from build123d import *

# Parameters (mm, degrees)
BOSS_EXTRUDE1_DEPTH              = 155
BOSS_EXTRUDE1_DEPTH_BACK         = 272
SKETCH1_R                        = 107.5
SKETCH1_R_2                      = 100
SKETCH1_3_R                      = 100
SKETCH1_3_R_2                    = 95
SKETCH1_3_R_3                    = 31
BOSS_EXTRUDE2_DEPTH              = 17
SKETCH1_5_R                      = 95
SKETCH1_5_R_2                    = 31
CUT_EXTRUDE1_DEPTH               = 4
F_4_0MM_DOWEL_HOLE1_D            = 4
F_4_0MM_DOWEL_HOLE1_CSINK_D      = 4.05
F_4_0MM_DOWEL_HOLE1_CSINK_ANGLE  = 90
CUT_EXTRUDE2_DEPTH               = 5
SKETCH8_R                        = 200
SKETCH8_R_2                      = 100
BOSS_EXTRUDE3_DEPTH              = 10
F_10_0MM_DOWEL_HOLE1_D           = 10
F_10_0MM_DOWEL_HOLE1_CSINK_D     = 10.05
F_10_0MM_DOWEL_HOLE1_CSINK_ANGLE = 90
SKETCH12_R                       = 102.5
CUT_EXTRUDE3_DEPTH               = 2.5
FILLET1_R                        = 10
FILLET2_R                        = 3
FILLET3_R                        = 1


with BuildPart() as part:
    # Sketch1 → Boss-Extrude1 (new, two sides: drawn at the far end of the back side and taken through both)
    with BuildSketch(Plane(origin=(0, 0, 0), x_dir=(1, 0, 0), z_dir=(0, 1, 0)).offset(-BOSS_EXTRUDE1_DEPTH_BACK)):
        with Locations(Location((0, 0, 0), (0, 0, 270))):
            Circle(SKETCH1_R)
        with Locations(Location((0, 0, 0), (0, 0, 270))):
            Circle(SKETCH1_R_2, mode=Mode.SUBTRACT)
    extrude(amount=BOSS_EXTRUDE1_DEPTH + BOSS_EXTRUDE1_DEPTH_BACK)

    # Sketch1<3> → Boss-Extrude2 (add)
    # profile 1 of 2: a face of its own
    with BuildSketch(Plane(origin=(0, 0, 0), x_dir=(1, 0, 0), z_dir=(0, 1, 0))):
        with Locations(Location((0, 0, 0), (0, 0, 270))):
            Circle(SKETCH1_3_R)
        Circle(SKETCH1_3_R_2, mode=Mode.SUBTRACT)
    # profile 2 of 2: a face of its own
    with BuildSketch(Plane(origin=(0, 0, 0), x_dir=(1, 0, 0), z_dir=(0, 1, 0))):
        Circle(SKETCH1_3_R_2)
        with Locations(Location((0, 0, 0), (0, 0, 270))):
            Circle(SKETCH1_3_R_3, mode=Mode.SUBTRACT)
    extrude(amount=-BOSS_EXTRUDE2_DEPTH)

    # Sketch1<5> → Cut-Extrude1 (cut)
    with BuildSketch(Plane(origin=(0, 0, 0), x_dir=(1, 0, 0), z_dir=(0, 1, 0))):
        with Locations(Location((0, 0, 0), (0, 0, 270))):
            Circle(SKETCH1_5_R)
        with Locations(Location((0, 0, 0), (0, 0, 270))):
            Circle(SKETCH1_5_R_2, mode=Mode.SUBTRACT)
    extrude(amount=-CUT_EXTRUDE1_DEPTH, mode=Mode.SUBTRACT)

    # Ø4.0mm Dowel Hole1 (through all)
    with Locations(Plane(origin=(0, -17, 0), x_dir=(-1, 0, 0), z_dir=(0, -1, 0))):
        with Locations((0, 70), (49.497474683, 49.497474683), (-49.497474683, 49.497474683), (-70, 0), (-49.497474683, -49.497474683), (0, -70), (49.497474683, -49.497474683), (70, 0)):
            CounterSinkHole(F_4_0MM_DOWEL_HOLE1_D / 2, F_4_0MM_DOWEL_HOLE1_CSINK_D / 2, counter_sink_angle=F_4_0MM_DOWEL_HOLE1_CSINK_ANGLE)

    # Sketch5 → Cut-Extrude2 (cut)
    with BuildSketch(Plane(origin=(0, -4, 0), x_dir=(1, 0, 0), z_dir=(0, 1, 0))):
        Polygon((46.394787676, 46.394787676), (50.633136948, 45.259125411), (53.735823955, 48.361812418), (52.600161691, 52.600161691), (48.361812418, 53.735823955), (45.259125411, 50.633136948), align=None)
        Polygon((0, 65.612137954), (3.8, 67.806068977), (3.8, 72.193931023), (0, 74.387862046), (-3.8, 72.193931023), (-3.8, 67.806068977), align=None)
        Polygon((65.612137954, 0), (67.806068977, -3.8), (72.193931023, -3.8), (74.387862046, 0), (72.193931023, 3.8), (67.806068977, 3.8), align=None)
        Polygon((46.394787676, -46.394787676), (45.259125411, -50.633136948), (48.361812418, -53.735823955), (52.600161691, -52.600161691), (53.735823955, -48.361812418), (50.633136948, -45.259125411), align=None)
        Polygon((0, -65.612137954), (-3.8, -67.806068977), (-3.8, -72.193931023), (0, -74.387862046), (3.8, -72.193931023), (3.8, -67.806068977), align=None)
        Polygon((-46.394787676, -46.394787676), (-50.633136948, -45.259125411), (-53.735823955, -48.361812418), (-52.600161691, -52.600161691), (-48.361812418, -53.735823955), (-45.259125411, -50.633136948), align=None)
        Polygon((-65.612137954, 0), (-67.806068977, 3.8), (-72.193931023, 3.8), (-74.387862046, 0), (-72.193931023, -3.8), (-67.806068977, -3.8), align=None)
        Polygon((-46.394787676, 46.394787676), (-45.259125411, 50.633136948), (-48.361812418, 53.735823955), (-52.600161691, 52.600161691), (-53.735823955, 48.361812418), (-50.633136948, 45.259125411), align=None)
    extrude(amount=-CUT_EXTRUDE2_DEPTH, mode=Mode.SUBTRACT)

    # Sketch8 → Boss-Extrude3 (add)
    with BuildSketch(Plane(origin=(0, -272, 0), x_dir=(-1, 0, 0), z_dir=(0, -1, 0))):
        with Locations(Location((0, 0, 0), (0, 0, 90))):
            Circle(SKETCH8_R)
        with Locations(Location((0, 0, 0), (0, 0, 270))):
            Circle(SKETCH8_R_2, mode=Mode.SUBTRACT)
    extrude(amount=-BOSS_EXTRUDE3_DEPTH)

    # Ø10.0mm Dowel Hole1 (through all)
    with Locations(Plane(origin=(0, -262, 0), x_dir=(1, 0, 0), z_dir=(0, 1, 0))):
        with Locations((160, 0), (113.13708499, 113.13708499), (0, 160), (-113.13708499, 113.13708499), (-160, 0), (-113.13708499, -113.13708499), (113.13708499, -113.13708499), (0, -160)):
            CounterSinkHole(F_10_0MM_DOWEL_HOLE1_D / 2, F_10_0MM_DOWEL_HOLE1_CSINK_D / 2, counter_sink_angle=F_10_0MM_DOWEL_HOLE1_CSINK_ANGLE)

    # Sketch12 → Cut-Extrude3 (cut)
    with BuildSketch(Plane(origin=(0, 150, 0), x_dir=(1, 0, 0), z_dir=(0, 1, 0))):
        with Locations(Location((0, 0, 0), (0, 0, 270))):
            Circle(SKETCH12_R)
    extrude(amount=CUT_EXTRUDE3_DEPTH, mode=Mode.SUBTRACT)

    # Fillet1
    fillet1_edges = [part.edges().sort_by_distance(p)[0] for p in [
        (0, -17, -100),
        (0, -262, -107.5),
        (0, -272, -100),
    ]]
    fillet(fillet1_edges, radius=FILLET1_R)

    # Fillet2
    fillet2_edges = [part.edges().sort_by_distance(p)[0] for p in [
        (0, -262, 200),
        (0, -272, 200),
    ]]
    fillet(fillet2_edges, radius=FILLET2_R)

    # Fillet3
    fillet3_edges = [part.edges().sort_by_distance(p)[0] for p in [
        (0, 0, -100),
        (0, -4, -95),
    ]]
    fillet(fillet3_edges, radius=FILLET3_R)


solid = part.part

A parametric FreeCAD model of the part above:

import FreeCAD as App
import Part
import Sketcher
Q = App.Units.Quantity


def edges_at(feature, points):
    """Names of the edges that pass closest to the given points."""
    edges = feature.Shape.Edges
    near = lambda p: min(range(len(edges)), key=lambda i: edges[i].distToShape(Part.Vertex(*p))[0])
    return sorted({f"Edge{near(p) + 1}" for p in points})


def add_polygon(sketch, points):
    """Adds a closed chain of lines whose ends are joined by coincident constraints."""
    first, n = sketch.GeometryCount, len(points)
    for a, b in zip(points, points[1:] + points[:1]):
        sketch.addGeometry(Part.LineSegment(App.Vector(*a, 0), App.Vector(*b, 0)), False)
    for i in range(n):
        sketch.addConstraint(Sketcher.Constraint("Coincident", first + i, 2, first + (i + 1) % n, 1))

doc = App.newDocument("Part")
body = doc.addObject("PartDesign::Body", "Body")

sketch1 = body.newObject("Sketcher::SketchObject", "Sketch")
sketch1.AttachmentSupport = (doc.getObject("XZ_Plane"), [""])
sketch1.MapMode = "FlatFace"
sketch1.addGeometry([
    Part.Circle(App.Vector(0, 0, 0), App.Vector(0, 0, 1), 107.5),
    Part.Circle(App.Vector(0, 0, 0), App.Vector(0, 0, 1), 100),
], False)
sketch1.addConstraint([
    Sketcher.Constraint("Coincident", 0, 3, -1, 1),
    Sketcher.Constraint("Coincident", 1, 3, -1, 1),
    Sketcher.Constraint("Diameter", 0, 215.0),
    Sketcher.Constraint("Diameter", 1, 200.0),
])
pad1 = body.newObject("PartDesign::Pad", "Pad")
pad1.Profile = sketch1
pad1.Type = "TwoLengths"
pad1.Length = 155
pad1.Length2 = 272
pad1.Reversed = True

sketch2 = body.newObject("Sketcher::SketchObject", "Sketch001")
sketch2.AttachmentSupport = (doc.getObject("XZ_Plane"), [""])
sketch2.MapMode = "FlatFace"
sketch2.addGeometry([
    Part.Circle(App.Vector(0, 0, 0), App.Vector(0, 0, 1), 100),
    Part.Circle(App.Vector(0, 0, 0), App.Vector(0, 0, 1), 31),
], False)
sketch2.addConstraint([
    Sketcher.Constraint("Coincident", 0, 3, -1, 1),
    Sketcher.Constraint("Coincident", 1, 3, -1, 1),
    Sketcher.Constraint("Diameter", 0, 200.0),
    Sketcher.Constraint("Diameter", 1, 62.0),
])
pad2 = body.newObject("PartDesign::Pad", "Pad001")
pad2.Profile = sketch2
pad2.Length = 17

sketch3 = body.newObject("Sketcher::SketchObject", "Sketch002")
sketch3.AttachmentSupport = (doc.getObject("XZ_Plane"), [""])
sketch3.MapMode = "FlatFace"
sketch3.addGeometry([
    Part.Circle(App.Vector(0, 0, 0), App.Vector(0, 0, 1), 95),
    Part.Circle(App.Vector(0, 0, 0), App.Vector(0, 0, 1), 31),
], False)
sketch3.addConstraint([
    Sketcher.Constraint("Coincident", 0, 3, -1, 1),
    Sketcher.Constraint("Coincident", 1, 3, -1, 1),
    Sketcher.Constraint("Diameter", 0, 190.0),
    Sketcher.Constraint("Diameter", 1, 62.0),
])
pocket1 = body.newObject("PartDesign::Pocket", "Pocket")
pocket1.Profile = sketch3
pocket1.Length = 4
pocket1.Reversed = True

sketch4 = body.newObject("Sketcher::SketchObject", "Sketch003")
sketch4.AttachmentSupport = (doc.getObject("XZ_Plane"), [""])
sketch4.MapMode = "FlatFace"
sketch4.AttachmentOffset = App.Placement(App.Vector(0, 0, 17), App.Rotation())
sketch4.addGeometry([
    Part.Circle(App.Vector(0, -70, 0), App.Vector(0, 0, 1), 2),
    Part.Circle(App.Vector(-49.497475, -49.497475, 0), App.Vector(0, 0, 1), 2),
    Part.Circle(App.Vector(49.497475, -49.497475, 0), App.Vector(0, 0, 1), 2),
    Part.Circle(App.Vector(70, 0, 0), App.Vector(0, 0, 1), 2),
    Part.Circle(App.Vector(49.497475, 49.497475, 0), App.Vector(0, 0, 1), 2),
    Part.Circle(App.Vector(0, 70, 0), App.Vector(0, 0, 1), 2),
    Part.Circle(App.Vector(-49.497475, 49.497475, 0), App.Vector(0, 0, 1), 2),
    Part.Circle(App.Vector(-70, 0, 0), App.Vector(0, 0, 1), 2),
], False)
sketch4.addConstraint([
    Sketcher.Constraint("Equal", 0, 1),
    Sketcher.Constraint("Equal", 1, 2),
    Sketcher.Constraint("Equal", 2, 3),
    Sketcher.Constraint("Equal", 3, 4),
    Sketcher.Constraint("Equal", 4, 5),
    Sketcher.Constraint("Equal", 5, 6),
    Sketcher.Constraint("Equal", 6, 7),
    Sketcher.Constraint("Symmetric", 1, 3, 4, 3, -1, 1),
    Sketcher.Constraint("Symmetric", 0, 3, 5, 3, -1, 1),
    Sketcher.Constraint("Symmetric", 2, 3, 6, 3, -1, 1),
    Sketcher.Constraint("Symmetric", 3, 3, 7, 3, -1, 1),
    Sketcher.Constraint("Symmetric", 1, 3, 2, 3, -2),
    Sketcher.Constraint("PointOnObject", 0, 3, -2),
    Sketcher.Constraint("PointOnObject", 3, 3, -1),
    Sketcher.Constraint("Diameter", 0, 4.0),
    Sketcher.Constraint("DistanceY", 0, 3, -1, 1, 70.0),
    Sketcher.Constraint("DistanceX", -1, 1, 3, 3, 70.0),
    Sketcher.Constraint("DistanceX", 1, 3, 2, 3, 98.994949),
    Sketcher.Constraint("DistanceY", 2, 3, 4, 3, 98.994949),
])
doc.recompute()
hole = body.newObject("PartDesign::Hole", "Hole")
hole.Profile = sketch4
hole.ThreadType = "None"
hole.Diameter = 4
hole.DepthType = "ThroughAll"
hole.HoleCutType = "Countersink"
hole.HoleCutDiameter = 4.05
hole.HoleCutCountersinkAngle = 90

sketch5 = body.newObject("Sketcher::SketchObject", "Sketch004")
sketch5.AttachmentSupport = (doc.getObject("XZ_Plane"), [""])
sketch5.MapMode = "FlatFace"
sketch5.AttachmentOffset = App.Placement(App.Vector(0, 0, 4), App.Rotation())
add_polygon(sketch5, [(46.394788, -46.394788), (50.633137, -45.259125), (53.735824, -48.361812), (52.600162, -52.600162), (48.361812, -53.735824), (45.259125, -50.633137)])
add_polygon(sketch5, [(0, -65.612138), (3.8, -67.806069), (3.8, -72.193931), (0, -74.387862), (-3.8, -72.193931), (-3.8, -67.806069)])
add_polygon(sketch5, [(65.612138, 0), (67.806069, 3.8), (72.193931, 3.8), (74.387862, 0), (72.193931, -3.8), (67.806069, -3.8)])
add_polygon(sketch5, [(46.394788, 46.394788), (45.259125, 50.633137), (48.361812, 53.735824), (52.600162, 52.600162), (53.735824, 48.361812), (50.633137, 45.259125)])
add_polygon(sketch5, [(0, 65.612138), (-3.8, 67.806069), (-3.8, 72.193931), (0, 74.387862), (3.8, 72.193931), (3.8, 67.806069)])
add_polygon(sketch5, [(-46.394788, 46.394788), (-50.633137, 45.259125), (-53.735824, 48.361812), (-52.600162, 52.600162), (-48.361812, 53.735824), (-45.259125, 50.633137)])
add_polygon(sketch5, [(-65.612138, 0), (-67.806069, -3.8), (-72.193931, -3.8), (-74.387862, 0), (-72.193931, 3.8), (-67.806069, 3.8)])
add_polygon(sketch5, [(-46.394788, -46.394788), (-45.259125, -50.633137), (-48.361812, -53.735824), (-52.600162, -52.600162), (-53.735824, -48.361812), (-50.633137, -45.259125)])
sketch5.addConstraint([
    Sketcher.Constraint("Vertical", 7),
    Sketcher.Constraint("Vertical", 10),
    Sketcher.Constraint("Horizontal", 13),
    Sketcher.Constraint("Horizontal", 16),
    Sketcher.Constraint("Vertical", 25),
    Sketcher.Constraint("Vertical", 28),
    Sketcher.Constraint("Horizontal", 37),
    Sketcher.Constraint("Horizontal", 40),
    Sketcher.Constraint("Symmetric", 6, 2, 24, 2, -1, 1),
    Sketcher.Constraint("Symmetric", 8, 2, 26, 2, -1, 1),
    Sketcher.Constraint("Symmetric", 9, 2, 27, 2, -1, 1),
    Sketcher.Constraint("Symmetric", 11, 2, 29, 2, -1, 1),
    Sketcher.Constraint("Symmetric", 0, 2, 30, 2, -1, 1),
    Sketcher.Constraint("Symmetric", 1, 2, 31, 2, -1, 1),
    Sketcher.Constraint("Symmetric", 2, 2, 32, 2, -1, 1),
    Sketcher.Constraint("Symmetric", 3, 2, 33, 2, -1, 1),
    Sketcher.Constraint("Symmetric", 4, 2, 34, 2, -1, 1),
    Sketcher.Constraint("Symmetric", 5, 2, 35, 2, -1, 1),
    Sketcher.Constraint("Symmetric", 12, 2, 36, 2, -1, 1),
    Sketcher.Constraint("Symmetric", 14, 2, 38, 2, -1, 1),
    Sketcher.Constraint("Symmetric", 15, 2, 39, 2, -1, 1),
    Sketcher.Constraint("Symmetric", 17, 2, 41, 2, -1, 1),
    Sketcher.Constraint("Symmetric", 18, 2, 42, 2, -1, 1),
    Sketcher.Constraint("Symmetric", 19, 2, 43, 2, -1, 1),
    Sketcher.Constraint("Symmetric", 20, 2, 44, 2, -1, 1),
    Sketcher.Constraint("Symmetric", 21, 2, 45, 2, -1, 1),
    Sketcher.Constraint("Symmetric", 22, 2, 46, 2, -1, 1),
    Sketcher.Constraint("Symmetric", 23, 2, 47, 2, -1, 1),
    Sketcher.Constraint("Symmetric", 7, 2, 9, 2, -2),
    Sketcher.Constraint("Symmetric", 22, 2, 30, 2, -2),
    Sketcher.Constraint("Symmetric", 21, 2, 31, 2, -2),
    Sketcher.Constraint("Symmetric", 20, 2, 32, 2, -2),
    Sketcher.Constraint("Symmetric", 19, 2, 33, 2, -2),
    Sketcher.Constraint("Symmetric", 18, 2, 34, 2, -2),
    Sketcher.Constraint("Symmetric", 23, 2, 35, 2, -2),
    Sketcher.Constraint("Symmetric", 16, 2, 36, 2, -2),
    Sketcher.Constraint("PointOnObject", 8, 2, -2),
    Sketcher.Constraint("PointOnObject", 11, 2, -2),
    Sketcher.Constraint("PointOnObject", 14, 2, -1),
    Sketcher.Constraint("PointOnObject", 17, 2, -1),
    Sketcher.Constraint("Parallel", 0, 3),
    Sketcher.Constraint("Parallel", 1, 4),
    Sketcher.Constraint("Parallel", 2, 5),
    Sketcher.Constraint("Parallel", 6, 9),
    Sketcher.Constraint("Parallel", 8, 11),
    Sketcher.Constraint("Perpendicular", 9, 12),
    Sketcher.Constraint("Perpendicular", 11, 14),
    Sketcher.Constraint("Parallel", 12, 15),
    Sketcher.Constraint("Perpendicular", 3, 18),
    Sketcher.Constraint("Perpendicular", 4, 19),
    Sketcher.Constraint("Perpendicular", 17, 26),
    Sketcher.Constraint("Parallel", 26, 29),
    Sketcher.Constraint("Perpendicular", 29, 38),
    Sketcher.Constraint("Parallel", 38, 41),
    Sketcher.Constraint("Equal", 40, 7),
    Sketcher.Constraint("Equal", 0, 1),
    Sketcher.Constraint("Equal", 1, 2),
    Sketcher.Constraint("Equal", 2, 3),
    Sketcher.Constraint("Equal", 5, 6),
    Sketcher.Constraint("Equal", 11, 12),
    Sketcher.Constraint("Angle", 0, Q("15 deg")),
    Sketcher.Constraint("Angle", 6, Q("-30 deg")),
    Sketcher.Constraint("DistanceX", -1, 1, 6, 2, 3.8),
    Sketcher.Constraint("DistanceY", 11, 2, 42, 2, 14.979001),
    Sketcher.Constraint("DistanceX", 13, 1, 13, 2, 4.387862),
    Sketcher.Constraint("DistanceX", -1, 1, 2, 2, 52.600162),
    Sketcher.Constraint("DistanceY", 2, 2, -1, 1, 52.600162),
    Sketcher.Constraint("DistanceX", -1, 1, 12, 2, 67.806069),
])
pocket2 = body.newObject("PartDesign::Pocket", "Pocket001")
pocket2.Profile = sketch5
pocket2.Length = 5
pocket2.Reversed = True

sketch6 = body.newObject("Sketcher::SketchObject", "Sketch005")
sketch6.AttachmentSupport = (doc.getObject("XZ_Plane"), [""])
sketch6.MapMode = "FlatFace"
sketch6.AttachmentOffset = App.Placement(App.Vector(0, 0, 272), App.Rotation())
sketch6.addGeometry([
    Part.Circle(App.Vector(0, 0, 0), App.Vector(0, 0, 1), 200),
    Part.Circle(App.Vector(0, 0, 0), App.Vector(0, 0, 1), 100),
], False)
sketch6.addConstraint([
    Sketcher.Constraint("Coincident", 0, 3, -1, 1),
    Sketcher.Constraint("Coincident", 1, 3, -1, 1),
    Sketcher.Constraint("Diameter", 0, 400.0),
    Sketcher.Constraint("Diameter", 1, 200.0),
])
pad3 = body.newObject("PartDesign::Pad", "Pad002")
pad3.Profile = sketch6
pad3.Length = 10
pad3.Reversed = True

sketch7 = body.newObject("Sketcher::SketchObject", "Sketch006")
sketch7.AttachmentSupport = (doc.getObject("XZ_Plane"), [""])
sketch7.MapMode = "FlatFace"
sketch7.AttachmentOffset = App.Placement(App.Vector(0, 0, 262), App.Rotation())
sketch7.addGeometry([
    Part.Circle(App.Vector(160, 0, 0), App.Vector(0, 0, 1), 5),
    Part.Circle(App.Vector(113.137085, -113.137085, 0), App.Vector(0, 0, 1), 5),
    Part.Circle(App.Vector(0, -160, 0), App.Vector(0, 0, 1), 5),
    Part.Circle(App.Vector(-113.137085, -113.137085, 0), App.Vector(0, 0, 1), 5),
    Part.Circle(App.Vector(-160, 0, 0), App.Vector(0, 0, 1), 5),
    Part.Circle(App.Vector(-113.137085, 113.137085, 0), App.Vector(0, 0, 1), 5),
    Part.Circle(App.Vector(113.137085, 113.137085, 0), App.Vector(0, 0, 1), 5),
    Part.Circle(App.Vector(0, 160, 0), App.Vector(0, 0, 1), 5),
], False)
sketch7.addConstraint([
    Sketcher.Constraint("Equal", 0, 1),
    Sketcher.Constraint("Equal", 1, 2),
    Sketcher.Constraint("Equal", 2, 3),
    Sketcher.Constraint("Equal", 3, 4),
    Sketcher.Constraint("Equal", 4, 5),
    Sketcher.Constraint("Equal", 5, 6),
    Sketcher.Constraint("Equal", 6, 7),
    Sketcher.Constraint("Symmetric", 0, 3, 4, 3, -1, 1),
    Sketcher.Constraint("Symmetric", 1, 3, 5, 3, -1, 1),
    Sketcher.Constraint("Symmetric", 3, 3, 6, 3, -1, 1),
    Sketcher.Constraint("Symmetric", 2, 3, 7, 3, -1, 1),
    Sketcher.Constraint("Symmetric", 1, 3, 3, 3, -2),
    Sketcher.Constraint("PointOnObject", 0, 3, -1),
    Sketcher.Constraint("PointOnObject", 2, 3, -2),
    Sketcher.Constraint("Diameter", 0, 10.0),
    Sketcher.Constraint("DistanceX", -1, 1, 0, 3, 160.0),
    Sketcher.Constraint("DistanceY", 2, 3, -1, 1, 160.0),
    Sketcher.Constraint("DistanceX", 3, 3, 1, 3, 226.27417),
    Sketcher.Constraint("DistanceY", 3, 3, 5, 3, 226.27417),
])
doc.recompute()
hole2 = body.newObject("PartDesign::Hole", "Hole001")
hole2.Profile = sketch7
hole2.ThreadType = "None"
hole2.Diameter = 10
hole2.DepthType = "ThroughAll"
hole2.HoleCutType = "Countersink"
hole2.HoleCutDiameter = 10.05
hole2.HoleCutCountersinkAngle = 90
hole2.Reversed = True

sketch8 = body.newObject("Sketcher::SketchObject", "Sketch007")
sketch8.AttachmentSupport = (doc.getObject("XZ_Plane"), [""])
sketch8.MapMode = "FlatFace"
sketch8.AttachmentOffset = App.Placement(App.Vector(0, 0, -150), App.Rotation())
sketch8.addGeometry(Part.Circle(App.Vector(0, 0, 0), App.Vector(0, 0, 1), 102.5), False)
sketch8.addConstraint([
    Sketcher.Constraint("Coincident", 0, 3, -1, 1),
    Sketcher.Constraint("Diameter", 0, 205.0),
])
pocket3 = body.newObject("PartDesign::Pocket", "Pocket002")
pocket3.Profile = sketch8
pocket3.Length = 2.5
doc.recompute()

fillet = body.newObject("PartDesign::Fillet", "Fillet")
fillet.Base = (pocket3, edges_at(pocket3, [(0, -17, -100), (0, -262, -107.5), (0, -272, -100)]))
fillet.Radius = 10
doc.recompute()

fillet2 = body.newObject("PartDesign::Fillet", "Fillet001")
fillet2.Base = (fillet, edges_at(fillet, [(0, -262, 200), (0, -272, 200)]))
fillet2.Radius = 3
doc.recompute()

fillet3 = body.newObject("PartDesign::Fillet", "Fillet002")
fillet3.Base = (fillet2, edges_at(fillet2, [(0, 0, -100), (0, -4, -95)]))
fillet3.Radius = 1

doc.recompute()
